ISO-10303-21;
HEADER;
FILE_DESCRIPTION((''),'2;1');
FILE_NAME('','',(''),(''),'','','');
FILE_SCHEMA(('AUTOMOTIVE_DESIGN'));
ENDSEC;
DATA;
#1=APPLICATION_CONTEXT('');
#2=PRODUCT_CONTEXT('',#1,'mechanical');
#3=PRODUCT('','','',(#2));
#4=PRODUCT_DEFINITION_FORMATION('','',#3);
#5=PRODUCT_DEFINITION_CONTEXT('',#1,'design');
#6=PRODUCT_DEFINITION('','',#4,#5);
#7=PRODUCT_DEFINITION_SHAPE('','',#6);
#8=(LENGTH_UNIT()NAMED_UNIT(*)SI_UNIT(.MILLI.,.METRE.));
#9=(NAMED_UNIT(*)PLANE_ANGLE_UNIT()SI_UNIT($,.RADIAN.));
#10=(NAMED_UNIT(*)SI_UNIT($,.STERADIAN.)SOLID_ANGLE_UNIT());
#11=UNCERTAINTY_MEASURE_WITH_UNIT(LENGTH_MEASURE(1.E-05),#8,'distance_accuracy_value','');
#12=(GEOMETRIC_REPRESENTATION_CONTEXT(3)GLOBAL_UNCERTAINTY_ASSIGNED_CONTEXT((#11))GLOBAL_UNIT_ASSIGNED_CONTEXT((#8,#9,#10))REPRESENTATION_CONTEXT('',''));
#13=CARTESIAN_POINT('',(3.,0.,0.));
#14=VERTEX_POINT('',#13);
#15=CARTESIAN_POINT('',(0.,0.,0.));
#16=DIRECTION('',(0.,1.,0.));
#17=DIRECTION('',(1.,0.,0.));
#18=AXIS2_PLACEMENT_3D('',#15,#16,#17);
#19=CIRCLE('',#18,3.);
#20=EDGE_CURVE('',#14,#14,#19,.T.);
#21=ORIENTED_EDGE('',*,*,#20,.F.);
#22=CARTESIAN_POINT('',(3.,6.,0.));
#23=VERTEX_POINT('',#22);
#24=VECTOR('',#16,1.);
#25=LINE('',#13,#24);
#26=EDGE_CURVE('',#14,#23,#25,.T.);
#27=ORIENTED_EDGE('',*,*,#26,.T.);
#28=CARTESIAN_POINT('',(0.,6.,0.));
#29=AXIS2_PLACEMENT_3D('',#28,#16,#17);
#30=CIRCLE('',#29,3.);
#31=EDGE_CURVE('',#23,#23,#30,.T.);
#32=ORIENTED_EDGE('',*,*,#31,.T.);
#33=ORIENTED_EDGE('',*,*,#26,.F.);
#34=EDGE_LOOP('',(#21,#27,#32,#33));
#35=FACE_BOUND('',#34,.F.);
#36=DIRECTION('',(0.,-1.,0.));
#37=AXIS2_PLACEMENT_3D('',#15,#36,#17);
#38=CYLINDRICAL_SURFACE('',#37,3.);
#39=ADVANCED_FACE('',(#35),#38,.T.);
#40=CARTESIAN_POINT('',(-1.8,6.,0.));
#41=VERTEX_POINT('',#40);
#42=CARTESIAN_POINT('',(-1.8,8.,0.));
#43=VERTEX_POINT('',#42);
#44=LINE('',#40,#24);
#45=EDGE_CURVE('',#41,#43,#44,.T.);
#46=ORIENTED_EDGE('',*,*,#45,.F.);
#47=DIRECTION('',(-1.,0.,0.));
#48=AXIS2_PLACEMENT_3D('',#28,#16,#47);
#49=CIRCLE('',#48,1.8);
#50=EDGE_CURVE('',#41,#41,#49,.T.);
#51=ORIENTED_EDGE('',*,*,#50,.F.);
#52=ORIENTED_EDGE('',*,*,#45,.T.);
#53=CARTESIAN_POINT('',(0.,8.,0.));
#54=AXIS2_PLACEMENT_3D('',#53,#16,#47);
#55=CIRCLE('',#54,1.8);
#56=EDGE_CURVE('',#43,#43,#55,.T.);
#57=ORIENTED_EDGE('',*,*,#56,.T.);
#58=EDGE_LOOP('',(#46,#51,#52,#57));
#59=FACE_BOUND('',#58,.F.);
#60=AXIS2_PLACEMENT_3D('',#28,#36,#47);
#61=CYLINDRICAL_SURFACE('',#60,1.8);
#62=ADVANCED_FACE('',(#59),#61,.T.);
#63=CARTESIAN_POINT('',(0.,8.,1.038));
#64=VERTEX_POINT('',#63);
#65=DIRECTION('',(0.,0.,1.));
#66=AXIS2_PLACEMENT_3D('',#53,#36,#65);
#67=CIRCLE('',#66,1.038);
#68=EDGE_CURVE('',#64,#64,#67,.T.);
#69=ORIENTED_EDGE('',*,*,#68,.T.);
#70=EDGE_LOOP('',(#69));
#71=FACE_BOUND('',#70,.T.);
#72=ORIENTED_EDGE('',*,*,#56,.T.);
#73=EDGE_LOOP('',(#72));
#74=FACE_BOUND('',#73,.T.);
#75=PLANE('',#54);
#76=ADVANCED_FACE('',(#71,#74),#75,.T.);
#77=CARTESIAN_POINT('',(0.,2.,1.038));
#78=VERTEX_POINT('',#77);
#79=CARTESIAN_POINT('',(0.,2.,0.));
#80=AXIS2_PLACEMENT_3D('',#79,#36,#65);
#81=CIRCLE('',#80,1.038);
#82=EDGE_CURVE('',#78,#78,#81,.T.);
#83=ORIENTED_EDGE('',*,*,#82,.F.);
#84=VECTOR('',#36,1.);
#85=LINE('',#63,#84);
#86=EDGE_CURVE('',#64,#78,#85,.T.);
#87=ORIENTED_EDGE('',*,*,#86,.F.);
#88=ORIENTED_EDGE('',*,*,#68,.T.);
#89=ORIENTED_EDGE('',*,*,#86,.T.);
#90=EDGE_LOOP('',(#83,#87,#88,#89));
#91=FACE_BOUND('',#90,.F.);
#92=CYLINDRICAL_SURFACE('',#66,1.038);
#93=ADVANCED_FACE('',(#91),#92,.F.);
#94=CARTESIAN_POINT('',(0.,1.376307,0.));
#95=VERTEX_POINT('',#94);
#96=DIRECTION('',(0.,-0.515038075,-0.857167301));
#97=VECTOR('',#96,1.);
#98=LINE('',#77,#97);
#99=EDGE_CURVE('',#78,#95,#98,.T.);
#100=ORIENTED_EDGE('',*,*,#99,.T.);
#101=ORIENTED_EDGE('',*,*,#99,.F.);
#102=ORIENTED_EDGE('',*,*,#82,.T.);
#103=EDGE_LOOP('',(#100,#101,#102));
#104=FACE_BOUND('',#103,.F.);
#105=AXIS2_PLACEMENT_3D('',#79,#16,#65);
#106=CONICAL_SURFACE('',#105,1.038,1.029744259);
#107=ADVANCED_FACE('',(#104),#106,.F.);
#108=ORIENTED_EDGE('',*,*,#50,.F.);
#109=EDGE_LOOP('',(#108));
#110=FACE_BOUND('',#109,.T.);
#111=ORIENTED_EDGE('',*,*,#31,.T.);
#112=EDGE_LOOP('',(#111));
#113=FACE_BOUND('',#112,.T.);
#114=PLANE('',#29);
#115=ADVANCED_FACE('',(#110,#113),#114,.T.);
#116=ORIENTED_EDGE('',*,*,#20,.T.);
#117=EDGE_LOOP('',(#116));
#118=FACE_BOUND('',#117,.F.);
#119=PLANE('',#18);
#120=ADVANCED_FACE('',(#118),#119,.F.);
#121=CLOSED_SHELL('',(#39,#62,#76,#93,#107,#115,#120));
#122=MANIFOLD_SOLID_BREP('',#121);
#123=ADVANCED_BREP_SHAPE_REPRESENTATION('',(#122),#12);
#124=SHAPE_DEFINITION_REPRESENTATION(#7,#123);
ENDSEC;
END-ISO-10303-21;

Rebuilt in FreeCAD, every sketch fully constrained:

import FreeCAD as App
import Part
import Sketcher
from FreeCAD import Vector

doc = App.newDocument("Part")
body = doc.addObject("PartDesign::Body", "Body")

# Sketch on XZ plane
sketch1 = body.newObject("Sketcher::SketchObject", "Sketch")
sketch1.AttachmentSupport = (doc.getObject("XZ_Plane"), [""])
sketch1.MapMode = "FlatFace"
sketch1.addGeometry(Part.Circle(Vector(0, 0, 0), Vector(0, 0, 1), 3), False)
sketch1.addConstraint([
    Sketcher.Constraint("Coincident", 0, 3, -1, 1),
    Sketcher.Constraint("Diameter", 0, 6.0),
])
pad1 = body.newObject("PartDesign::Pad", "Pad")
pad1.Profile = sketch1
pad1.Length = 6
pad1.Reversed = True

# Sketch on XZ plane
sketch2 = body.newObject("Sketcher::SketchObject", "Sketch001")
sketch2.AttachmentSupport = (doc.getObject("XZ_Plane"), [""])
sketch2.MapMode = "FlatFace"
sketch2.AttachmentOffset = App.Placement(Vector(0, 0, -6), App.Rotation())
sketch2.addGeometry(Part.Circle(Vector(0, 0, 0), Vector(0, 0, 1), 1.8), False)
sketch2.addConstraint([
    Sketcher.Constraint("Coincident", 0, 3, -1, 1),
    Sketcher.Constraint("Diameter", 0, 3.6),
])
pad2 = body.newObject("PartDesign::Pad", "Pad001")
pad2.Profile = sketch2
pad2.Length = 2
pad2.Reversed = True

# Sketch on XZ plane
sketch3 = body.newObject("Sketcher::SketchObject", "Sketch002")
sketch3.AttachmentSupport = (doc.getObject("XZ_Plane"), [""])
sketch3.MapMode = "FlatFace"
sketch3.AttachmentOffset = App.Placement(Vector(0, 0, -8), App.Rotation())
sketch3.addGeometry(Part.Circle(Vector(0, 0, 0), Vector(0, 0, 1), 1.038), False)
sketch3.addConstraint([
    Sketcher.Constraint("Coincident", 0, 3, -1, 1),
    Sketcher.Constraint("Diameter", 0, 2.076),
])
doc.recompute()
hole = body.newObject("PartDesign::Hole", "Hole")
hole.Profile = sketch3
hole.ThreadType = "None"
hole.Diameter = 2.076
hole.DepthType = "Dimension"
hole.Depth = 6
hole.DrillPoint = "Angled"
hole.DrillPointAngle = 118
hole.Reversed = True

doc.recompute()
